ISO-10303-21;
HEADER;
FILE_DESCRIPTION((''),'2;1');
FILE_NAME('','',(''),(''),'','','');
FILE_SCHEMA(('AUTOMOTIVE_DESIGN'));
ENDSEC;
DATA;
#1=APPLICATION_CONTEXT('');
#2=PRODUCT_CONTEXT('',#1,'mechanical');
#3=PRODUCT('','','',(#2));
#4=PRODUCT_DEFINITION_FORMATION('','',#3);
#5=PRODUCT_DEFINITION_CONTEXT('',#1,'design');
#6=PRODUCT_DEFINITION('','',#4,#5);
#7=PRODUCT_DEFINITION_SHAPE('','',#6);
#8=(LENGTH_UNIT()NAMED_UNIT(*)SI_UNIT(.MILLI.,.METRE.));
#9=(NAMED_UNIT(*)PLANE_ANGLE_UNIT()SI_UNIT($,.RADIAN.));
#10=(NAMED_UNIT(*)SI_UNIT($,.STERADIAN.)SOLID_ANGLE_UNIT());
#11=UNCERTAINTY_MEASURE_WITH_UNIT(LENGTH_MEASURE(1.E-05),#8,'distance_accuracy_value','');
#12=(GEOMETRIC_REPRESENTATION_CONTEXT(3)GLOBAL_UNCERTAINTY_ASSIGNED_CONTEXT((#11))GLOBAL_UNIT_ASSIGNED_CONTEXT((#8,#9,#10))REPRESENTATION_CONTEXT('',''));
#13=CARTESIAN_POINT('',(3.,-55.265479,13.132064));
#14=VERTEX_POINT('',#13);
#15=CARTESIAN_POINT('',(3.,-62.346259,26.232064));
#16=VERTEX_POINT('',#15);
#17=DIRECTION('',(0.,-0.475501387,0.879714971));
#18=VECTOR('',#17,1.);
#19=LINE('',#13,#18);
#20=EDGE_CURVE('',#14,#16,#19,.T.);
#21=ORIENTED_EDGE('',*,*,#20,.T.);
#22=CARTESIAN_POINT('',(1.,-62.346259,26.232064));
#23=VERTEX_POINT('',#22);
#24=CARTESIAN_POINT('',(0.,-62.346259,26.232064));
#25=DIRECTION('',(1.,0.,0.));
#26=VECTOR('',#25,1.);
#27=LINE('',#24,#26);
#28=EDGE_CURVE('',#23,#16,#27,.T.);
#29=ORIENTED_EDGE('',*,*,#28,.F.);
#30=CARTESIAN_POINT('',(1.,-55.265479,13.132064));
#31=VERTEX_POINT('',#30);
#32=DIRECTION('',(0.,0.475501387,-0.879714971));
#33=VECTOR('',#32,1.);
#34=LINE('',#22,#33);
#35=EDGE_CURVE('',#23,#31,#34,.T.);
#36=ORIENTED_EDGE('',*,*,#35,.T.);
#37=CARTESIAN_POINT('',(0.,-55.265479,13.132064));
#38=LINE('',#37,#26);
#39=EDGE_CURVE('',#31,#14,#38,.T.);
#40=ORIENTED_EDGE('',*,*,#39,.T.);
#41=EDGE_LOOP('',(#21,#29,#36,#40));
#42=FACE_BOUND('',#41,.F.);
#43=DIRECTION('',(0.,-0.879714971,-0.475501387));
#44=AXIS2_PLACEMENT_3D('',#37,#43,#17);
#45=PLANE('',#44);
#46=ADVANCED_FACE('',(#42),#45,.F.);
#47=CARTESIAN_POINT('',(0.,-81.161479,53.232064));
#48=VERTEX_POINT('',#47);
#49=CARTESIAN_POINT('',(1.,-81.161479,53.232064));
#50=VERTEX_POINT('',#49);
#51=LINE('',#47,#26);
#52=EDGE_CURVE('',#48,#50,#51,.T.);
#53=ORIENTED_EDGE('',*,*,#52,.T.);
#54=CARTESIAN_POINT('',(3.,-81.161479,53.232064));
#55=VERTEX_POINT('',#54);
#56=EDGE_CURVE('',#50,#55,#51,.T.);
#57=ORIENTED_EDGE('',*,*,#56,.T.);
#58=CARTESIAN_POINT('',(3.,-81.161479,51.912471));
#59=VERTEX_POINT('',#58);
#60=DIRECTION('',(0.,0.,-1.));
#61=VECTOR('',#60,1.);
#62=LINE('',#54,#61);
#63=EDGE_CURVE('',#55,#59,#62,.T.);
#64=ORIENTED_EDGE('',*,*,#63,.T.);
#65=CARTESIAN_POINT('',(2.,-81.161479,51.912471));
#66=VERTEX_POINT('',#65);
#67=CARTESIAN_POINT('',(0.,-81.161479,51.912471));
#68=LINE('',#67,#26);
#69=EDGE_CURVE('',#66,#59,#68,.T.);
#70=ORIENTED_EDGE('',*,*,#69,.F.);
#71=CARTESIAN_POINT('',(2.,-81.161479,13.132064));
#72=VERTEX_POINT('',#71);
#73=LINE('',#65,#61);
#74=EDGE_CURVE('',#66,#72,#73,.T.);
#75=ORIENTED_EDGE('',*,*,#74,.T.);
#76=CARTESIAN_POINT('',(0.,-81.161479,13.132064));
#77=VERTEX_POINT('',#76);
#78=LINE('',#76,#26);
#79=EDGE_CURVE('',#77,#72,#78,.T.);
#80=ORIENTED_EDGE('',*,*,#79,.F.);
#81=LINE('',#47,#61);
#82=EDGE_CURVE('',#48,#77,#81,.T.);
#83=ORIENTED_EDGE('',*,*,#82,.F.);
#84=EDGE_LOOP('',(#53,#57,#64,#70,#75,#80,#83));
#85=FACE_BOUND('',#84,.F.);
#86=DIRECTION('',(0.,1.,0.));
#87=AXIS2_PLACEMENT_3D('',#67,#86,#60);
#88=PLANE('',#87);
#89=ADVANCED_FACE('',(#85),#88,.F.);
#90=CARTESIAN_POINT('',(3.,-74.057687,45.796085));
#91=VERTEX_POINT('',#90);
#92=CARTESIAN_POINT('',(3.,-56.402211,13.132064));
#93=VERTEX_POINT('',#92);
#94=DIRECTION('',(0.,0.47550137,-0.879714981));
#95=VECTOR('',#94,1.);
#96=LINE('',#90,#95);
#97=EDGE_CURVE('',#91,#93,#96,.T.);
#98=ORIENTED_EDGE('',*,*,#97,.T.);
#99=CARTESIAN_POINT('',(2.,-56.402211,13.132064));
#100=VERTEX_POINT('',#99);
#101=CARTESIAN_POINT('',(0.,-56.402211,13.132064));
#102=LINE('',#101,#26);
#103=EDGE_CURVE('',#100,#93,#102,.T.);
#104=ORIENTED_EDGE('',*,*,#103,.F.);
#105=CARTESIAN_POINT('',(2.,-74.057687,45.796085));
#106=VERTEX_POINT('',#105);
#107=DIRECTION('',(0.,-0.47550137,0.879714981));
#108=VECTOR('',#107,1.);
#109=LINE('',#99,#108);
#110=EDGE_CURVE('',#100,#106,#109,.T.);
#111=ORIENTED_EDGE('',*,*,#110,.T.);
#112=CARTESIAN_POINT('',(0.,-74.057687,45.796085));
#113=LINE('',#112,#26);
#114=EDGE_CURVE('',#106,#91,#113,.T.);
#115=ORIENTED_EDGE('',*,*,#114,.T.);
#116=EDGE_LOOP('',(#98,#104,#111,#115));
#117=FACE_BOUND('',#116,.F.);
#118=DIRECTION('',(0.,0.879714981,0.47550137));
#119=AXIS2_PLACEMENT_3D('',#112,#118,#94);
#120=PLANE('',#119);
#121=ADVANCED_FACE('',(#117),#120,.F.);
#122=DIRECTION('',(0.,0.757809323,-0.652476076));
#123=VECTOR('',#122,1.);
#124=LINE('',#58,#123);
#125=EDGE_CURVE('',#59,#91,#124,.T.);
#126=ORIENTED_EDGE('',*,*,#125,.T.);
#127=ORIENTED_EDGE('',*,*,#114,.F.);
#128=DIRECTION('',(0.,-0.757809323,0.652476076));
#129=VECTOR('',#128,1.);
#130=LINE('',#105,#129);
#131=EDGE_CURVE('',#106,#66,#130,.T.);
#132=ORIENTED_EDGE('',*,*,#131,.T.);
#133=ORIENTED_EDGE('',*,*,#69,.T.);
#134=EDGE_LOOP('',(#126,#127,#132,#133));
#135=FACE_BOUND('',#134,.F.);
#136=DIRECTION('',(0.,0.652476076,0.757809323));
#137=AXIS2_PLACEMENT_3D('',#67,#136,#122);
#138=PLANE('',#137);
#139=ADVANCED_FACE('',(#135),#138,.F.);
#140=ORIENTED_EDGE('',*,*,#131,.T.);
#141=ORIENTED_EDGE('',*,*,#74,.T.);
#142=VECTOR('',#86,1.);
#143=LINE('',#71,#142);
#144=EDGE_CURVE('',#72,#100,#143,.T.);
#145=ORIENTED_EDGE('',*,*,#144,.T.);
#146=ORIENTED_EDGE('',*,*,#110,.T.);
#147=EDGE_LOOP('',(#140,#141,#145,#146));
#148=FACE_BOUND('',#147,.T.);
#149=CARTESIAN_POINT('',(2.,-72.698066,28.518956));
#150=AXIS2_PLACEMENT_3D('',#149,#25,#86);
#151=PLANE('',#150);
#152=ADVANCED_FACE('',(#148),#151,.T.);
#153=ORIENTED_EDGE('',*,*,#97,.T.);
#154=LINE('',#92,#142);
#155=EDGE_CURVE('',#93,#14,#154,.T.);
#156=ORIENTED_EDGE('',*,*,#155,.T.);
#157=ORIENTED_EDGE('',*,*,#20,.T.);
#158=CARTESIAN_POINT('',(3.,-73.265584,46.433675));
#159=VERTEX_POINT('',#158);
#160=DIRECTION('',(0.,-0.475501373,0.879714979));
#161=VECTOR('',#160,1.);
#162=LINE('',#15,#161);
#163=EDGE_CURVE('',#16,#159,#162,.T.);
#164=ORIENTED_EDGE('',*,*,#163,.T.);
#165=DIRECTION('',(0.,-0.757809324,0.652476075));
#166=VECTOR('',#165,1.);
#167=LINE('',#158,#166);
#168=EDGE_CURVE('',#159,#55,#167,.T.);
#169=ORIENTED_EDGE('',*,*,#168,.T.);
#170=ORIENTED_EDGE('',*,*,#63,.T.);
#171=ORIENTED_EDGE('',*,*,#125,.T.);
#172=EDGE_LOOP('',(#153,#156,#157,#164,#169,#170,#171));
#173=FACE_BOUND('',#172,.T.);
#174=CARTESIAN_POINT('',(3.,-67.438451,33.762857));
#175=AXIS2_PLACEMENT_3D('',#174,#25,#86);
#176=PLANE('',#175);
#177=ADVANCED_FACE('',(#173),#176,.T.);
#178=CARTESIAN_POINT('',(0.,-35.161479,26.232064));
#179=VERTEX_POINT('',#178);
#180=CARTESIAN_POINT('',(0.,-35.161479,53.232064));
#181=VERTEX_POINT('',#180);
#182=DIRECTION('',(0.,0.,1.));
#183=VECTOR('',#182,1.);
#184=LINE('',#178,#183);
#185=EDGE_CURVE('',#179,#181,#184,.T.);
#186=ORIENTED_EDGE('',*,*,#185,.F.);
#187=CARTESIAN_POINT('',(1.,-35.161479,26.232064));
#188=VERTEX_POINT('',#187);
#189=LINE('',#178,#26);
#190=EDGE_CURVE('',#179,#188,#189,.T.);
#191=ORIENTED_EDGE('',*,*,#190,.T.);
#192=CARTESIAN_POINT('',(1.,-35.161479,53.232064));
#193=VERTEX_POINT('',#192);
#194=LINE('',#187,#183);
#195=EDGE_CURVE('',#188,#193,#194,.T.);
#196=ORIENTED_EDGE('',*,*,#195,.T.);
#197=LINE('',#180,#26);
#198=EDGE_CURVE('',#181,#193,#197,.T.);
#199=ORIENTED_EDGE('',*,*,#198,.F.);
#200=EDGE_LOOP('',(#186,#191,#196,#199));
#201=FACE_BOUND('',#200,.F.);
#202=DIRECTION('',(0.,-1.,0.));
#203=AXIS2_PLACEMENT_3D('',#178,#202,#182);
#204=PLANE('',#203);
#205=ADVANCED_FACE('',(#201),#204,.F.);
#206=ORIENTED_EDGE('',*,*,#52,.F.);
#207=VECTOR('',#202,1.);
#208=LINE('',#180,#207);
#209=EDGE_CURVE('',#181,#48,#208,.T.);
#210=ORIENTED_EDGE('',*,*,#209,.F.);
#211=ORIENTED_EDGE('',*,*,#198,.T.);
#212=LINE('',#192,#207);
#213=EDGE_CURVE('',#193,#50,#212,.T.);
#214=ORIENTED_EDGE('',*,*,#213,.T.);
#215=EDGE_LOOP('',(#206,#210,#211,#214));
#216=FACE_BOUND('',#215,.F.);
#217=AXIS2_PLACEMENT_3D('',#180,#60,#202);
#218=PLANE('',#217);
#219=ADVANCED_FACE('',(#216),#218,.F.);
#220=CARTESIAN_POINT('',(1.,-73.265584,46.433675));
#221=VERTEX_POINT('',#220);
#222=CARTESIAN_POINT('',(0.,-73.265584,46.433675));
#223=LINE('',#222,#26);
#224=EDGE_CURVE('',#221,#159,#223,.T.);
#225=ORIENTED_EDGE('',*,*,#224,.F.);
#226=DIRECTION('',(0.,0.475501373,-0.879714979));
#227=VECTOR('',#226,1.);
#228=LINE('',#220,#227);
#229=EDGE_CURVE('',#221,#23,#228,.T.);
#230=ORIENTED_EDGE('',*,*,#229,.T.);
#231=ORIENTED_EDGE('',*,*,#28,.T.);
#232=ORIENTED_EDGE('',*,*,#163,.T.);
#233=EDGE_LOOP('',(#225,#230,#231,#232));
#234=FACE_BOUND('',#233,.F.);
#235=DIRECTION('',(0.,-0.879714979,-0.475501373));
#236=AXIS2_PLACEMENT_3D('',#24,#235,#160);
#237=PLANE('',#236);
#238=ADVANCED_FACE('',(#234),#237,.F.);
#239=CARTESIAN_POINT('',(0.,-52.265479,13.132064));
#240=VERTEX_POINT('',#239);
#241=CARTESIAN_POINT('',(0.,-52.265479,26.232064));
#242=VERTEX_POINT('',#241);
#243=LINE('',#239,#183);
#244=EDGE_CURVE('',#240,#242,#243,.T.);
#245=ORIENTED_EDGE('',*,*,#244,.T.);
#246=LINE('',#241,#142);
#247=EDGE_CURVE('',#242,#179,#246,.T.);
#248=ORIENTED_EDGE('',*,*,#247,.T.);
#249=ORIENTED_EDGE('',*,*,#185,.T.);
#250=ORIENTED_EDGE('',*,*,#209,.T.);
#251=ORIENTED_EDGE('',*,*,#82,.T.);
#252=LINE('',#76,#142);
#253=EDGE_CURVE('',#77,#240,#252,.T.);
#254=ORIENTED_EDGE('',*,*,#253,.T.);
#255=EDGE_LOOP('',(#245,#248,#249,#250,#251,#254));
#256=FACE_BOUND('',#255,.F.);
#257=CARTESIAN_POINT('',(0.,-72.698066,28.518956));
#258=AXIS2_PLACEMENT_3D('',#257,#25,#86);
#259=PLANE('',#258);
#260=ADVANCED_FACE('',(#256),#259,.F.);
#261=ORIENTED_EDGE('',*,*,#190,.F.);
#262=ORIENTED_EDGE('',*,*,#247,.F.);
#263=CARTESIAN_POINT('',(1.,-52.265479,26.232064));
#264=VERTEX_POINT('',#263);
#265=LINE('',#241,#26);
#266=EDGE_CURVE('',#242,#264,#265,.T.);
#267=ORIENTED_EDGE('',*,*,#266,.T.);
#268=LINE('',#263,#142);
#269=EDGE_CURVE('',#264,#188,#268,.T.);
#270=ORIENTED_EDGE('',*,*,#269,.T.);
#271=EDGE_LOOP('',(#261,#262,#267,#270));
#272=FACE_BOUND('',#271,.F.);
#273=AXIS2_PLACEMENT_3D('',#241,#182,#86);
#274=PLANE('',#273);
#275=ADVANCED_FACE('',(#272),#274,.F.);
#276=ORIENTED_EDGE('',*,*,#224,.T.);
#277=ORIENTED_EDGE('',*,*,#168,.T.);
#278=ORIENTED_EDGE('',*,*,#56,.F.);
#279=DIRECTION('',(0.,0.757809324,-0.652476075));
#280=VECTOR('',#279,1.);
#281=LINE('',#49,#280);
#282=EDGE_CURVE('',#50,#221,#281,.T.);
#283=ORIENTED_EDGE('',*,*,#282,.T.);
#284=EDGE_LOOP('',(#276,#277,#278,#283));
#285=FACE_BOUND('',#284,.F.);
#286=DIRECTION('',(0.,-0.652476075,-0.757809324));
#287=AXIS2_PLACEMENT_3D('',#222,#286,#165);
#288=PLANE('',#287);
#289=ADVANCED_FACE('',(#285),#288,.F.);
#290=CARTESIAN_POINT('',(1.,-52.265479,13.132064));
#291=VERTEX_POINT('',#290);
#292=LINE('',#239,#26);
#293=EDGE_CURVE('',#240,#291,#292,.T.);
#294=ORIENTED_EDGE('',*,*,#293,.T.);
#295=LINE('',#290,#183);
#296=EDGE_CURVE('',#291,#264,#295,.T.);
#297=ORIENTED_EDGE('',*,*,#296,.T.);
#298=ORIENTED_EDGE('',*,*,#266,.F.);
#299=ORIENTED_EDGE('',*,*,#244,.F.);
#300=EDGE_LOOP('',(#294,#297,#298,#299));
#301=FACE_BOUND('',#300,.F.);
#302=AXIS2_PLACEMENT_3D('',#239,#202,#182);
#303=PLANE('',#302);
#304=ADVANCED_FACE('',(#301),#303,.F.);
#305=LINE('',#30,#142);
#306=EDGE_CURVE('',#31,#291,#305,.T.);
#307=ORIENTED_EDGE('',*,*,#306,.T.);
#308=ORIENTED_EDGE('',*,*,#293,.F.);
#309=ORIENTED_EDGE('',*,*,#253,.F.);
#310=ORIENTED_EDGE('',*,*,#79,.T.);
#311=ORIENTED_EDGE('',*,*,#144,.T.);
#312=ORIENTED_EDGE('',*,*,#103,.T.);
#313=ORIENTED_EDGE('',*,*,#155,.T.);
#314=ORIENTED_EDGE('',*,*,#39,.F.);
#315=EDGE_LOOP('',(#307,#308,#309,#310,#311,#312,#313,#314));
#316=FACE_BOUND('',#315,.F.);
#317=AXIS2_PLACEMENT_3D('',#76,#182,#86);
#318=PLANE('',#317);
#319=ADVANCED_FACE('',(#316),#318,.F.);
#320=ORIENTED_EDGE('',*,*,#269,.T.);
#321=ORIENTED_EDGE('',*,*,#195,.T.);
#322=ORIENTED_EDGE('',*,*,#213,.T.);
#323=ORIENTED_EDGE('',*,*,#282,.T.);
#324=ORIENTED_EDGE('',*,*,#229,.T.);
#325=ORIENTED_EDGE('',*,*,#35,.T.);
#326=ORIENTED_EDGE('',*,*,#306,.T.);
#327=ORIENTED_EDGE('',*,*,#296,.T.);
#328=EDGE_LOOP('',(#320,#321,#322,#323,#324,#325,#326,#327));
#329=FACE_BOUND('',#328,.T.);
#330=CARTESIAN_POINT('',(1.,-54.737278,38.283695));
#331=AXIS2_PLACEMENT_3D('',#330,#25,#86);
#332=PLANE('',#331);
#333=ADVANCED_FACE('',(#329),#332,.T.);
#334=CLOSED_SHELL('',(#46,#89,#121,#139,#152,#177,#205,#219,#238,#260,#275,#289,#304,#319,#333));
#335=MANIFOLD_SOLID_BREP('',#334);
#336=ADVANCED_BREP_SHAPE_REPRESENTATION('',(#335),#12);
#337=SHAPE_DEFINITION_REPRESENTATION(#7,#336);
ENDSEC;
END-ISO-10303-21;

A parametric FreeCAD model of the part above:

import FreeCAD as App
import Part
import Sketcher

V = App.Vector

doc = App.newDocument("Part")
params = doc.addObject("Spreadsheet::Sheet", "Params")
for row, (alias, value) in enumerate([
    ("sketch1_width", "46 mm"),
    ("sketch1_width2", "3 mm"),
    ("sketch1_height", "27 mm"),
    ("sketch1_height2", "13.1 mm"),
    ("pad1_length", "1 mm"),
    ("pad2_length", "3 mm"),
    ("pad3_length", "2 mm"),
], start=1):
    params.set(f"A{row}", alias)
    params.set(f"B{row}", "=" + value)
    params.setAlias(f"B{row}", alias)

body = doc.addObject("PartDesign::Body", "Body")

# Sketch on YZ plane
sketch1 = body.newObject("Sketcher::SketchObject", "Sketch")
sketch1.AttachmentSupport = (doc.getObject("YZ_Plane"), [""])
sketch1.MapMode = "FlatFace"
sketch1.addGeometry(Part.LineSegment(V(-35.2, 26.2, 0), V(-35.2, 53.2, 0)), False)
sketch1.addGeometry(Part.LineSegment(V(-35.2, 53.2, 0), V(-81.2, 53.2, 0)), False)
sketch1.addGeometry(Part.LineSegment(V(-81.2, 53.2, 0), V(-73.3, 46.4, 0)), False)
sketch1.addGeometry(Part.LineSegment(V(-73.3, 46.4, 0), V(-62.3, 26.2, 0)), False)
sketch1.addGeometry(Part.LineSegment(V(-62.3, 26.2, 0), V(-55.3, 13.1, 0)), False)
sketch1.addGeometry(Part.LineSegment(V(-55.3, 13.1, 0), V(-52.3, 13.1, 0)), False)
sketch1.addGeometry(Part.LineSegment(V(-52.3, 13.1, 0), V(-52.3, 26.2, 0)), False)
sketch1.addGeometry(Part.LineSegment(V(-52.3, 26.2, 0), V(-35.2, 26.2, 0)), False)
sketch1.addConstraint(Sketcher.Constraint("Coincident", 0, 2, 1, 1))
sketch1.addConstraint(Sketcher.Constraint("Coincident", 1, 2, 2, 1))
sketch1.addConstraint(Sketcher.Constraint("Coincident", 2, 2, 3, 1))
sketch1.addConstraint(Sketcher.Constraint("Coincident", 3, 2, 4, 1))
sketch1.addConstraint(Sketcher.Constraint("Coincident", 4, 2, 5, 1))
sketch1.addConstraint(Sketcher.Constraint("Coincident", 5, 2, 6, 1))
sketch1.addConstraint(Sketcher.Constraint("Coincident", 6, 2, 7, 1))
sketch1.addConstraint(Sketcher.Constraint("Coincident", 7, 2, 0, 1))
sketch1.addConstraint(Sketcher.Constraint("Vertical", 0))
sketch1.addConstraint(Sketcher.Constraint("Horizontal", 1))
sketch1.addConstraint(Sketcher.Constraint("Horizontal", 5))
sketch1.addConstraint(Sketcher.Constraint("Vertical", 6))
sketch1.addConstraint(Sketcher.Constraint("Horizontal", 7))
sketch1.addConstraint(Sketcher.Constraint("Parallel", 3, 4))
sketch1.addConstraint(Sketcher.Constraint("Horizontal", 3, 2, 6, 2))
sketch1.addConstraint(Sketcher.Constraint("DistanceX", 1, 2, 1, 1, 46.0))
sketch1.addConstraint(Sketcher.Constraint("DistanceX", 5, 1, 5, 2, 3.0))
sketch1.addConstraint(Sketcher.Constraint("DistanceY", 0, 1, 0, 2, 27.0))
sketch1.addConstraint(Sketcher.Constraint("DistanceY", 6, 1, 6, 2, 13.1))
sketch1.addConstraint(Sketcher.Constraint("DistanceX", 7, 1, 7, 2, 17.104))
sketch1.addConstraint(Sketcher.Constraint("Distance", 2, 10.419369))
sketch1.addConstraint(Sketcher.Constraint("DistanceX", 0, 2, -1, 1, 35.161479))
sketch1.addConstraint(Sketcher.Constraint("DistanceX", 3, 2, -1, 1, 62.346259))
sketch1.addConstraint(Sketcher.Constraint("DistanceY", -1, 1, 0, 2, 53.232064))
sketch1.setExpression("Constraints[15]", "Params.sketch1_width")
sketch1.setExpression("Constraints[16]", "Params.sketch1_width2")
sketch1.setExpression("Constraints[17]", "Params.sketch1_height")
sketch1.setExpression("Constraints[18]", "Params.sketch1_height2")
pad1 = body.newObject("PartDesign::Pad", "Pad")
pad1.Profile = sketch1
pad1.setExpression("Length", "Params.pad1_length")

# Sketch on YZ plane
sketch2 = body.newObject("Sketcher::SketchObject", "Sketch001")
sketch2.AttachmentSupport = (doc.getObject("YZ_Plane"), [""])
sketch2.MapMode = "FlatFace"
sketch2.addGeometry(Part.LineSegment(V(-73.3, 46.4, 0), V(-81.2, 53.2, 0)), False)
sketch2.addGeometry(Part.LineSegment(V(-81.2, 53.2, 0), V(-81.2, 51.9, 0)), False)
sketch2.addGeometry(Part.LineSegment(V(-81.2, 51.9, 0), V(-74.1, 45.8, 0)), False)
sketch2.addGeometry(Part.LineSegment(V(-74.1, 45.8, 0), V(-56.4, 13.1, 0)), False)
sketch2.addGeometry(Part.LineSegment(V(-56.4, 13.1, 0), V(-55.3, 13.1, 0)), False)
sketch2.addGeometry(Part.LineSegment(V(-55.3, 13.1, 0), V(-62.3, 26.2, 0)), False)
sketch2.addGeometry(Part.LineSegment(V(-62.3, 26.2, 0), V(-73.3, 46.4, 0)), False)
sketch2.addConstraint(Sketcher.Constraint("Coincident", 0, 2, 1, 1))
sketch2.addConstraint(Sketcher.Constraint("Coincident", 1, 2, 2, 1))
sketch2.addConstraint(Sketcher.Constraint("Coincident", 2, 2, 3, 1))
sketch2.addConstraint(Sketcher.Constraint("Coincident", 3, 2, 4, 1))
sketch2.addConstraint(Sketcher.Constraint("Coincident", 4, 2, 5, 1))
sketch2.addConstraint(Sketcher.Constraint("Coincident", 5, 2, 6, 1))
sketch2.addConstraint(Sketcher.Constraint("Coincident", 6, 2, 0, 1))
sketch2.addConstraint(Sketcher.Constraint("Vertical", 1))
sketch2.addConstraint(Sketcher.Constraint("Horizontal", 4))
sketch2.addConstraint(Sketcher.Constraint("Parallel", 0, 2))
sketch2.addConstraint(Sketcher.Constraint("Parallel", 3, 5))
sketch2.addConstraint(Sketcher.Constraint("Parallel", 5, 6))
sketch2.addConstraint(Sketcher.Constraint("DistanceY", 5, 2, 0, 2, 27.0))
sketch2.addConstraint(Sketcher.Constraint("DistanceY", 3, 2, 0, 2, 40.1))
sketch2.addConstraint(Sketcher.Constraint("DistanceX", 1, 2, 4, 2, 25.896))
sketch2.addConstraint(Sketcher.Constraint("Distance", 0, 10.419369))
sketch2.addConstraint(Sketcher.Constraint("Distance", 3, 37.130232))
sketch2.addConstraint(Sketcher.Constraint("DistanceX", 4, 1, 4, 2, 1.136732))
sketch2.addConstraint(Sketcher.Constraint("DistanceY", 1, 2, 1, 1, 1.319593))
sketch2.addConstraint(Sketcher.Constraint("DistanceX", 0, 2, -1, 1, 81.161479))
sketch2.addConstraint(Sketcher.Constraint("DistanceY", -1, 1, 1, 2, 51.912471))
pad2 = body.newObject("PartDesign::Pad", "Pad001")
pad2.Profile = sketch2
pad2.setExpression("Length", "Params.pad2_length")

# Sketch on YZ plane
sketch3 = body.newObject("Sketcher::SketchObject", "Sketch002")
sketch3.AttachmentSupport = (doc.getObject("YZ_Plane"), [""])
sketch3.MapMode = "FlatFace"
sketch3.addGeometry(Part.LineSegment(V(-74, 46, 0), V(-81, 52, 0)), False)
sketch3.addGeometry(Part.LineSegment(V(-81, 52, 0), V(-81, 13, 0)), False)
sketch3.addGeometry(Part.LineSegment(V(-81, 13, 0), V(-56, 13, 0)), False)
sketch3.addGeometry(Part.LineSegment(V(-56, 13, 0), V(-74, 46, 0)), False)
sketch3.addConstraint(Sketcher.Constraint("Coincident", 0, 2, 1, 1))
sketch3.addConstraint(Sketcher.Constraint("Coincident", 1, 2, 2, 1))
sketch3.addConstraint(Sketcher.Constraint("Coincident", 2, 2, 3, 1))
sketch3.addConstraint(Sketcher.Constraint("Coincident", 3, 2, 0, 1))
sketch3.addConstraint(Sketcher.Constraint("Vertical", 1))
sketch3.addConstraint(Sketcher.Constraint("Horizontal", 2))
sketch3.addConstraint(Sketcher.Constraint("Distance", 3, 37.130232))
sketch3.addConstraint(Sketcher.Constraint("DistanceX", 2, 1, 2, 2, 24.759268))
sketch3.addConstraint(Sketcher.Constraint("DistanceY", 1, 2, 1, 1, 38.780407))
sketch3.addConstraint(Sketcher.Constraint("DistanceX", 0, 2, -1, 1, 81.161479))
sketch3.addConstraint(Sketcher.Constraint("DistanceY", -1, 1, 0, 2, 51.912471))
sketch3.addConstraint(Sketcher.Constraint("DistanceX", 0, 2, 3, 2, 7.103792))
pad3 = body.newObject("PartDesign::Pad", "Pad002")
pad3.Profile = sketch3
pad3.setExpression("Length", "Params.pad3_length")

doc.recompute()
